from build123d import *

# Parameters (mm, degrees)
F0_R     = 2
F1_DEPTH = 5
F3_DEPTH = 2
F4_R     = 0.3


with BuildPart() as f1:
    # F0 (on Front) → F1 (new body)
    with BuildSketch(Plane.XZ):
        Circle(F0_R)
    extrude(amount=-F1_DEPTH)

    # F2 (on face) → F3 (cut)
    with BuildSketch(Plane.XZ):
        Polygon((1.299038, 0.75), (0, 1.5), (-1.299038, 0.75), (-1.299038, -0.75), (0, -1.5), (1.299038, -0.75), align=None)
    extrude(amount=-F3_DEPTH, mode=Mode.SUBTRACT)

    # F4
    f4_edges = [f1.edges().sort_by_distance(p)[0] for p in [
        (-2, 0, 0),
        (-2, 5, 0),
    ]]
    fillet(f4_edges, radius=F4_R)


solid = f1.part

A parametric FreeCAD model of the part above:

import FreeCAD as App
import Part
import Sketcher

V = App.Vector
Q = App.Units.Quantity


def edges_at(feature, points):
    """Names of the edges that pass closest to the given points."""
    edges = feature.Shape.Edges
    near = lambda p: min(range(len(edges)), key=lambda i: edges[i].distToShape(Part.Vertex(*p))[0])
    return sorted({f"Edge{near(p) + 1}" for p in points})

doc = App.newDocument("Part")
body = doc.addObject("PartDesign::Body", "Body")

# Sketch on XZ plane
sketch1 = body.newObject("Sketcher::SketchObject", "Sketch")
sketch1.AttachmentSupport = (doc.getObject("XZ_Plane"), [""])
sketch1.MapMode = "FlatFace"
sketch1.addGeometry(Part.Circle(V(0, 0, 0), V(0, 0, 1), 2), False)
sketch1.addConstraint(Sketcher.Constraint("Coincident", 0, 3, -1, 1))
sketch1.addConstraint(Sketcher.Constraint("Diameter", 0, 4.0))
pad1 = body.newObject("PartDesign::Pad", "Pad")
pad1.Profile = sketch1
pad1.Length = 5
pad1.Reversed = True

# Sketch on XZ plane
sketch2 = body.newObject("Sketcher::SketchObject", "Sketch001")
sketch2.AttachmentSupport = (doc.getObject("XZ_Plane"), [""])
sketch2.MapMode = "FlatFace"
sketch2.addGeometry(Part.LineSegment(V(1.3, 0.8, 0), V(0, 1.5, 0)), False)
sketch2.addGeometry(Part.LineSegment(V(0, 1.5, 0), V(-1.3, 0.8, 0)), False)
sketch2.addGeometry(Part.LineSegment(V(-1.3, 0.8, 0), V(-1.3, -0.8, 0)), False)
sketch2.addGeometry(Part.LineSegment(V(-1.3, -0.8, 0), V(0, -1.5, 0)), False)
sketch2.addGeometry(Part.LineSegment(V(0, -1.5, 0), V(1.3, -0.8, 0)), False)
sketch2.addGeometry(Part.LineSegment(V(1.3, -0.8, 0), V(1.3, 0.8, 0)), False)
sketch2.addConstraint(Sketcher.Constraint("Coincident", 0, 2, 1, 1))
sketch2.addConstraint(Sketcher.Constraint("Coincident", 1, 2, 2, 1))
sketch2.addConstraint(Sketcher.Constraint("Coincident", 2, 2, 3, 1))
sketch2.addConstraint(Sketcher.Constraint("Coincident", 3, 2, 4, 1))
sketch2.addConstraint(Sketcher.Constraint("Coincident", 4, 2, 5, 1))
sketch2.addConstraint(Sketcher.Constraint("Coincident", 5, 2, 0, 1))
sketch2.addConstraint(Sketcher.Constraint("Vertical", 2))
sketch2.addConstraint(Sketcher.Constraint("Vertical", 5))
sketch2.addConstraint(Sketcher.Constraint("Symmetric", 0, 2, 3, 2, -1, 1))
sketch2.addConstraint(Sketcher.Constraint("Symmetric", 1, 2, 4, 2, -1, 1))
sketch2.addConstraint(Sketcher.Constraint("PointOnObject", 0, 2, -2))
sketch2.addConstraint(Sketcher.Constraint("Parallel", 0, 3))
sketch2.addConstraint(Sketcher.Constraint("Horizontal", 2, 2, 4, 2))
sketch2.addConstraint(Sketcher.Constraint("Angle", 0, Q("149.999998 deg")))
sketch2.addConstraint(Sketcher.Constraint("DistanceY", 2, 2, 2, 1, 1.5))
sketch2.addConstraint(Sketcher.Constraint("DistanceY", 3, 2, 0, 2, 3.0))
pocket1 = body.newObject("PartDesign::Pocket", "Pocket")
pocket1.Profile = sketch2
pocket1.Length = 2
doc.recompute()

fillet = body.newObject("PartDesign::Fillet", "Fillet")
fillet.Base = (pocket1, edges_at(pocket1, [(-2, 0, 0), (-2, 5, 0)]))
fillet.Radius = 0.3

doc.recompute()
